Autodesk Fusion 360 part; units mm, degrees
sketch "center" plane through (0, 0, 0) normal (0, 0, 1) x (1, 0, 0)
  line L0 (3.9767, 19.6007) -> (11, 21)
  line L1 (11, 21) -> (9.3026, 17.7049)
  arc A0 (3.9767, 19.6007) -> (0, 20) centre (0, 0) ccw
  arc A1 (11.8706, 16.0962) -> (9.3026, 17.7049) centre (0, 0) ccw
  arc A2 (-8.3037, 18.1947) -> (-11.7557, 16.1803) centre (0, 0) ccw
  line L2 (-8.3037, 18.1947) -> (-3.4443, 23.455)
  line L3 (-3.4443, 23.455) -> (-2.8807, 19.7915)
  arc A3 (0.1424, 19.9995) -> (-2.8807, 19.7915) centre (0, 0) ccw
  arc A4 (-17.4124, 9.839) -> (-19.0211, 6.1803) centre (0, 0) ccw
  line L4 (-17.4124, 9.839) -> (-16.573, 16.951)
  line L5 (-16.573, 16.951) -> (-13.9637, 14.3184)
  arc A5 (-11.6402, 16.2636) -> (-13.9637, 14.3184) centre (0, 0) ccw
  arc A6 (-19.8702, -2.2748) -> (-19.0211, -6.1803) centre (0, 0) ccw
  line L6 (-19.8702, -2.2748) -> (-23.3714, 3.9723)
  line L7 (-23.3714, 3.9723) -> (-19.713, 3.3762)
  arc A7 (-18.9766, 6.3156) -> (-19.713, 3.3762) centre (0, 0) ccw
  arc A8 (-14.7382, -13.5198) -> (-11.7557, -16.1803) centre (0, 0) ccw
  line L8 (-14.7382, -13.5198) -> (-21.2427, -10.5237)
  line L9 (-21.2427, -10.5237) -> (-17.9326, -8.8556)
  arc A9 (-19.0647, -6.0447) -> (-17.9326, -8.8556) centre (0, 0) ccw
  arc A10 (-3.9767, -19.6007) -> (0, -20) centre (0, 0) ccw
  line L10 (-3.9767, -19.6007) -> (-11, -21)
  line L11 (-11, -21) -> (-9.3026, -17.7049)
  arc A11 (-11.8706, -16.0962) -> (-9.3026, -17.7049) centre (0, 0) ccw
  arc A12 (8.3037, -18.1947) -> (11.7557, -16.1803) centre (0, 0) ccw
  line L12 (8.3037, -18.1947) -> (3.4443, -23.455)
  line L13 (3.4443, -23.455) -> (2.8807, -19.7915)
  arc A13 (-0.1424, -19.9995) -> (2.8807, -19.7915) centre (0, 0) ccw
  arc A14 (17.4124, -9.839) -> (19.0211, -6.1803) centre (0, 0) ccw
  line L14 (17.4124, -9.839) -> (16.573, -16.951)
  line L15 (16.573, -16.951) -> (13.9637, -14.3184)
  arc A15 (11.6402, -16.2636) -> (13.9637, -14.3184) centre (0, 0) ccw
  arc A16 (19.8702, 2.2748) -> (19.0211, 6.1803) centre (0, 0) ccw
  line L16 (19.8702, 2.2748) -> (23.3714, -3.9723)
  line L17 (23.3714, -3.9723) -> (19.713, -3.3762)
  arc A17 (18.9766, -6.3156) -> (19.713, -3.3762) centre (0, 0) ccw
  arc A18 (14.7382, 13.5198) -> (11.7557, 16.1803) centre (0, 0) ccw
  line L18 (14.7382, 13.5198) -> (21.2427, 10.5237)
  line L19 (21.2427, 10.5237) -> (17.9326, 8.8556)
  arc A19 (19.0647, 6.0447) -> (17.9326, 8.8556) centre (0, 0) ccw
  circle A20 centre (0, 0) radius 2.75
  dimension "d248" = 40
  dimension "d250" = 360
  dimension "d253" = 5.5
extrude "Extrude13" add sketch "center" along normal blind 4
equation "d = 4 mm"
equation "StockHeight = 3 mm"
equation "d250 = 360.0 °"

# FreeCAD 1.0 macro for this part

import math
import FreeCAD as App
import Part
import Sketcher
from FreeCAD import Vector

doc = App.newDocument("Part")
params = doc.addObject("Spreadsheet::Sheet", "Params")
for row, (alias, value) in enumerate([
    ("sketch1_radius", "20 mm"),
    ("sketch1_radius2", "20 mm"),
    ("sketch1_diameter", "5.5 mm"),
    ("pad1_length", "4 mm"),
], start=1):
    params.set(f"A{row}", alias)
    params.set(f"B{row}", "=" + value)
    params.setAlias(f"B{row}", alias)

body = doc.addObject("PartDesign::Body", "Body")

sketch1 = body.newObject("Sketcher::SketchObject", "Sketch")
sketch1.AttachmentSupport = (doc.getObject("XY_Plane"), [""])
sketch1.MapMode = "FlatFace"
sketch1.addGeometry([
    Part.LineSegment(Vector(11, 21, 0), Vector(3.9767, 19.6007, 0)),
    Part.ArcOfCircle(Part.Circle(Vector(0.000592, 0.003915, 0), Vector(0, 0, 1), 19.996085), math.radians(78.530614), math.radians(90.001697)),
    Part.ArcOfCircle(Part.Circle(Vector(0.000218, -0.00708, 0), Vector(0, 0, 1), 20.007086), math.radians(90.000625), math.radians(98.27908)),
    Part.LineSegment(Vector(-2.8807, 19.7915, 0), Vector(-3.4443, 23.455, 0)),
    Part.LineSegment(Vector(-3.4443, 23.455, 0), Vector(-8.3037, 18.1947, 0)),
    Part.ArcOfCircle(Part.Circle(Vector(0, 0, 0), Vector(0, 0, 1), 20.00004), math.radians(114.531015), math.radians(126.000055)),
    Part.ArcOfCircle(Part.Circle(Vector(0.006816, -0.008798, 0), Vector(0, 0, 1), 20.011095), math.radians(126.001037), math.radians(134.277846)),
    Part.LineSegment(Vector(-13.9637, 14.3184, 0), Vector(-16.573, 16.951, 0)),
    Part.LineSegment(Vector(-16.573, 16.951, 0), Vector(-17.4124, 9.839, 0)),
    Part.ArcOfCircle(Part.Circle(Vector(0.001696, -0.00085, 0), Vector(0, 0, 1), 20.001835), math.radians(150.531344), math.radians(161.999269)),
    Part.ArcOfCircle(Part.Circle(Vector(0.012314, -0.003586, 0), Vector(0, 0, 1), 20.01277), math.radians(162.001212), math.radians(170.277209)),
    Part.LineSegment(Vector(-19.713, 3.3762, 0), Vector(-23.3714, 3.9723, 0)),
    Part.LineSegment(Vector(-23.3714, 3.9723, 0), Vector(-19.8702, -2.2748, 0)),
    Part.ArcOfCircle(Part.Circle(Vector(-0.002985, -0.000494, 0), Vector(0, 0, 1), 19.996968), math.radians(-173.469474), math.radians(-161.998785)),
    Part.ArcOfCircle(Part.Circle(Vector(-0.005693, -0.002045, 0), Vector(0, 0, 1), 19.993985), math.radians(-162.000616), math.radians(-153.716634)),
    Part.LineSegment(Vector(-17.9326, -8.8556, 0), Vector(-21.2427, -10.5237, 0)),
    Part.LineSegment(Vector(-21.2427, -10.5237, 0), Vector(-14.7382, -13.5198, 0)),
    Part.ArcOfCircle(Part.Circle(Vector(-0.001652, -0.001675, 0), Vector(0, 0, 1), 19.997639), math.radians(-137.46923), math.radians(-125.999047)),
    Part.ArcOfCircle(Part.Circle(Vector(0.007479, 0.01099, 0), Vector(0, 0, 1), 20.013254), math.radians(-125.998884), math.radians(-117.722886)),
    Part.LineSegment(Vector(-9.3026, -17.7049, 0), Vector(-11, -21, 0)),
    Part.LineSegment(Vector(-11, -21, 0), Vector(-3.9767, -19.6007, 0)),
    Part.ArcOfCircle(Part.Circle(Vector(-0.000592, -0.003915, 0), Vector(0, 0, 1), 19.996085), math.radians(-101.469386), math.radians(-89.998303)),
    Part.ArcOfCircle(Part.Circle(Vector(-0.000218, 0.00708, 0), Vector(0, 0, 1), 20.007086), math.radians(-89.999375), math.radians(-81.72092)),
    Part.LineSegment(Vector(2.8807, -19.7915, 0), Vector(3.4443, -23.455, 0)),
    Part.LineSegment(Vector(3.4443, -23.455, 0), Vector(8.3037, -18.1947, 0)),
    Part.ArcOfCircle(Part.Circle(Vector(0, 0, 0), Vector(0, 0, 1), 20.00004), math.radians(-65.468985), math.radians(-53.999945)),
    Part.ArcOfCircle(Part.Circle(Vector(-0.006816, 0.008798, 0), Vector(0, 0, 1), 20.011095), math.radians(-53.998963), math.radians(-45.722154)),
    Part.LineSegment(Vector(13.9637, -14.3184, 0), Vector(16.573, -16.951, 0)),
    Part.LineSegment(Vector(16.573, -16.951, 0), Vector(17.4124, -9.839, 0)),
    Part.ArcOfCircle(Part.Circle(Vector(-0.001696, 0.00085, 0), Vector(0, 0, 1), 20.001835), math.radians(-29.468656), math.radians(-18.000731)),
    Part.ArcOfCircle(Part.Circle(Vector(-0.012314, 0.003586, 0), Vector(0, 0, 1), 20.01277), math.radians(-17.998788), math.radians(-9.722791)),
    Part.LineSegment(Vector(19.713, -3.3762, 0), Vector(23.3714, -3.9723, 0)),
    Part.LineSegment(Vector(23.3714, -3.9723, 0), Vector(19.8702, 2.2748, 0)),
    Part.ArcOfCircle(Part.Circle(Vector(0.002985, 0.000494, 0), Vector(0, 0, 1), 19.996968), math.radians(6.530526), math.radians(18.001215)),
    Part.ArcOfCircle(Part.Circle(Vector(0.005693, 0.002045, 0), Vector(0, 0, 1), 19.993985), math.radians(17.999384), math.radians(26.283366)),
    Part.LineSegment(Vector(17.9326, 8.8556, 0), Vector(21.2427, 10.5237, 0)),
    Part.LineSegment(Vector(21.2427, 10.5237, 0), Vector(14.7382, 13.5198, 0)),
    Part.ArcOfCircle(Part.Circle(Vector(0.001652, 0.001675, 0), Vector(0, 0, 1), 19.997639), math.radians(42.53077), math.radians(53.592987)),
    Part.ArcOfCircle(Part.Circle(Vector(-0.007479, -0.01099, 0), Vector(0, 0, 1), 20.013254), math.radians(53.593469), math.radians(62.277114)),
    Part.LineSegment(Vector(9.3026, 17.7049, 0), Vector(11, 21, 0)),
    Part.Circle(Vector(0, 0, 0), Vector(0, 0, 1), 2.75),
], False)
sketch1.addConstraint([
    Sketcher.Constraint("Coincident", 0, 2, 1, 1),
    Sketcher.Constraint("Coincident", 1, 2, 2, 1),
    Sketcher.Constraint("Coincident", 2, 2, 3, 1),
    Sketcher.Constraint("Coincident", 3, 2, 4, 1),
    Sketcher.Constraint("Coincident", 4, 2, 5, 1),
    Sketcher.Constraint("Coincident", 5, 2, 6, 1),
    Sketcher.Constraint("Coincident", 6, 2, 7, 1),
    Sketcher.Constraint("Coincident", 7, 2, 8, 1),
    Sketcher.Constraint("Coincident", 8, 2, 9, 1),
    Sketcher.Constraint("Coincident", 9, 2, 10, 1),
    Sketcher.Constraint("Coincident", 10, 2, 11, 1),
    Sketcher.Constraint("Coincident", 11, 2, 12, 1),
    Sketcher.Constraint("Coincident", 12, 2, 13, 1),
    Sketcher.Constraint("Coincident", 13, 2, 14, 1),
    Sketcher.Constraint("Coincident", 14, 2, 15, 1),
    Sketcher.Constraint("Coincident", 15, 2, 16, 1),
    Sketcher.Constraint("Coincident", 16, 2, 17, 1),
    Sketcher.Constraint("Coincident", 17, 2, 18, 1),
    Sketcher.Constraint("Coincident", 18, 2, 19, 1),
    Sketcher.Constraint("Coincident", 19, 2, 20, 1),
    Sketcher.Constraint("Coincident", 20, 2, 21, 1),
    Sketcher.Constraint("Coincident", 21, 2, 22, 1),
    Sketcher.Constraint("Coincident", 22, 2, 23, 1),
    Sketcher.Constraint("Coincident", 23, 2, 24, 1),
    Sketcher.Constraint("Coincident", 24, 2, 25, 1),
    Sketcher.Constraint("Coincident", 25, 2, 26, 1),
    Sketcher.Constraint("Coincident", 26, 2, 27, 1),
    Sketcher.Constraint("Coincident", 27, 2, 28, 1),
    Sketcher.Constraint("Coincident", 28, 2, 29, 1),
    Sketcher.Constraint("Coincident", 29, 2, 30, 1),
    Sketcher.Constraint("Coincident", 30, 2, 31, 1),
    Sketcher.Constraint("Coincident", 31, 2, 32, 1),
    Sketcher.Constraint("Coincident", 32, 2, 33, 1),
    Sketcher.Constraint("Coincident", 33, 2, 34, 1),
    Sketcher.Constraint("Coincident", 34, 2, 35, 1),
    Sketcher.Constraint("Coincident", 35, 2, 36, 1),
    Sketcher.Constraint("Coincident", 36, 2, 37, 1),
    Sketcher.Constraint("Coincident", 37, 2, 38, 1),
    Sketcher.Constraint("Coincident", 38, 2, 39, 1),
    Sketcher.Constraint("Coincident", 39, 2, 0, 1),
    Sketcher.Constraint("Coincident", 5, 3, -1, 1),
    Sketcher.Constraint("Coincident", 25, 3, -1, 1),
    Sketcher.Constraint("Coincident", 40, 3, -1, 1),
    Sketcher.Constraint("PointOnObject", 1, 2, -2),
    Sketcher.Constraint("PointOnObject", 21, 2, -2),
    Sketcher.Constraint("Radius", 5, 20.0),
    Sketcher.Constraint("Radius", 25, 20.0),
    Sketcher.Constraint("Diameter", 40, 5.5),
    Sketcher.Constraint("DistanceY", -1, 1, 1, 2, 20.0),
    Sketcher.Constraint("DistanceX", 19, 2, -1, 1, 11.0),
    Sketcher.Constraint("DistanceY", 19, 2, -1, 1, 21.0),
    Sketcher.Constraint("DistanceY", 21, 2, -1, 1, 20.0),
    Sketcher.Constraint("DistanceX", -1, 1, 39, 2, 11.0),
    Sketcher.Constraint("DistanceY", -1, 1, 39, 2, 21.0),
    Sketcher.Constraint("Radius", 1, 19.996),
    Sketcher.Constraint("Radius", 2, 20.007),
    Sketcher.Constraint("Radius", 6, 20.011),
    Sketcher.Constraint("Radius", 13, 19.997),
    Sketcher.Constraint("Radius", 14, 19.994),
    Sketcher.Constraint("Radius", 21, 19.996),
    Sketcher.Constraint("Radius", 22, 20.007),
    Sketcher.Constraint("Radius", 26, 20.011),
    Sketcher.Constraint("Radius", 33, 19.997),
    Sketcher.Constraint("Radius", 34, 19.994),
    Sketcher.Constraint("Radius", 9, 20.0018),
    Sketcher.Constraint("Radius", 10, 20.0128),
    Sketcher.Constraint("Radius", 17, 19.9976),
    Sketcher.Constraint("Radius", 18, 20.0133),
    Sketcher.Constraint("Radius", 29, 20.0018),
    Sketcher.Constraint("Radius", 30, 20.0128),
    Sketcher.Constraint("Radius", 37, 19.9976),
    Sketcher.Constraint("Radius", 38, 20.0133),
    Sketcher.Constraint("DistanceX", 13, 3, -1, 1, 0.003),
    Sketcher.Constraint("DistanceY", 14, 3, -1, 1, 0.002),
    Sketcher.Constraint("DistanceY", -1, 1, 18, 3, 0.011),
    Sketcher.Constraint("DistanceX", -1, 1, 33, 3, 0.003),
    Sketcher.Constraint("DistanceY", -1, 1, 34, 3, 0.002),
    Sketcher.Constraint("DistanceY", 38, 3, -1, 1, 0.011),
    Sketcher.Constraint("DistanceY", -1, 1, 3, 2, 23.455),
    Sketcher.Constraint("DistanceX", 7, 2, -1, 1, 16.573),
    Sketcher.Constraint("DistanceY", -1, 1, 7, 2, 16.951),
    Sketcher.Constraint("DistanceY", -1, 1, 8, 2, 9.839),
    Sketcher.Constraint("DistanceX", 9, 2, -1, 1, 19.021),
    Sketcher.Constraint("DistanceX", 10, 2, -1, 1, 19.713),
    Sketcher.Constraint("DistanceX", 13, 2, -1, 1, 19.021),
    Sketcher.Constraint("DistanceY", 18, 2, -1, 1, 17.705),
    Sketcher.Constraint("DistanceY", 23, 2, -1, 1, 23.455),
    Sketcher.Constraint("DistanceX", -1, 1, 27, 2, 16.573),
    Sketcher.Constraint("DistanceY", 27, 2, -1, 1, 16.951),
    Sketcher.Constraint("DistanceY", 28, 2, -1, 1, 9.839),
    Sketcher.Constraint("DistanceX", -1, 1, 29, 2, 19.021),
    Sketcher.Constraint("DistanceX", -1, 1, 30, 2, 19.713),
    Sketcher.Constraint("DistanceX", -1, 1, 33, 2, 19.021),
    Sketcher.Constraint("DistanceY", -1, 1, 38, 2, 17.705),
    Sketcher.Constraint("Distance", 0, 7.1613),
    Sketcher.Constraint("Distance", 3, 3.7066),
    Sketcher.Constraint("Distance", 4, 7.1613),
    Sketcher.Constraint("Distance", 7, 3.7066),
    Sketcher.Constraint("Distance", 8, 7.1614),
    Sketcher.Constraint("Distance", 11, 3.7066),
    Sketcher.Constraint("Distance", 12, 7.1613),
    Sketcher.Constraint("Distance", 15, 3.7067),
    Sketcher.Constraint("Distance", 16, 7.1614),
    Sketcher.Constraint("Distance", 19, 3.7066),
    Sketcher.Constraint("Distance", 20, 7.1613),
    Sketcher.Constraint("Distance", 23, 3.7066),
    Sketcher.Constraint("Distance", 24, 7.1613),
    Sketcher.Constraint("Distance", 27, 3.7066),
    Sketcher.Constraint("Distance", 28, 7.1614),
    Sketcher.Constraint("Distance", 31, 3.7066),
    Sketcher.Constraint("Distance", 32, 7.1613),
    Sketcher.Constraint("Distance", 35, 3.7067),
    Sketcher.Constraint("Distance", 36, 7.1614),
    Sketcher.Constraint("Distance", 39, 3.7066),
    Sketcher.Constraint("DistanceX", -1, 1, 1, 3, 0.0006),
    Sketcher.Constraint("DistanceX", -1, 1, 2, 3, 0.0002),
    Sketcher.Constraint("DistanceX", -1, 1, 6, 3, 0.0068),
    Sketcher.Constraint("DistanceX", -1, 1, 9, 3, 0.0017),
    Sketcher.Constraint("DistanceX", -1, 1, 10, 3, 0.0123),
    Sketcher.Constraint("DistanceY", 13, 3, -1, 1, 0.0005),
    Sketcher.Constraint("DistanceX", 17, 3, -1, 1, 0.0017),
    Sketcher.Constraint("DistanceX", 21, 3, -1, 1, 0.0006),
    Sketcher.Constraint("DistanceX", 22, 3, -1, 1, 0.0002),
    Sketcher.Constraint("DistanceX", 26, 3, -1, 1, 0.0068),
    Sketcher.Constraint("DistanceX", 29, 3, -1, 1, 0.0017),
    Sketcher.Constraint("DistanceX", 30, 3, -1, 1, 0.0123),
    Sketcher.Constraint("DistanceY", -1, 1, 33, 3, 0.0005),
    Sketcher.Constraint("DistanceX", -1, 1, 37, 3, 0.0017),
    Sketcher.Constraint("DistanceX", 2, 2, -1, 1, 2.8807),
    Sketcher.Constraint("DistanceX", 5, 2, -1, 1, 11.7557),
    Sketcher.Constraint("DistanceX", 11, 2, -1, 1, 23.3714),
    Sketcher.Constraint("DistanceX", 14, 2, -1, 1, 17.9326),
    Sketcher.Constraint("DistanceX", 15, 2, -1, 1, 21.2427),
    Sketcher.Constraint("DistanceX", 17, 2, -1, 1, 11.7557),
    Sketcher.Constraint("DistanceX", -1, 1, 22, 2, 2.8807),
    Sketcher.Constraint("DistanceX", -1, 1, 25, 2, 11.7557),
    Sketcher.Constraint("DistanceX", -1, 1, 31, 2, 23.3714),
    Sketcher.Constraint("DistanceX", -1, 1, 34, 2, 17.9326),
    Sketcher.Constraint("DistanceX", -1, 1, 35, 2, 21.2427),
    Sketcher.Constraint("DistanceX", -1, 1, 37, 2, 11.8706),
])
sketch1.setExpression("Constraints[45]", "Params.sketch1_radius")
sketch1.setExpression("Constraints[46]", "Params.sketch1_radius2")
sketch1.setExpression("Constraints[47]", "Params.sketch1_diameter")
pad1 = body.newObject("PartDesign::Pad", "Pad")
pad1.Profile = sketch1
pad1.setExpression("Length", "Params.pad1_length")

doc.recompute()
